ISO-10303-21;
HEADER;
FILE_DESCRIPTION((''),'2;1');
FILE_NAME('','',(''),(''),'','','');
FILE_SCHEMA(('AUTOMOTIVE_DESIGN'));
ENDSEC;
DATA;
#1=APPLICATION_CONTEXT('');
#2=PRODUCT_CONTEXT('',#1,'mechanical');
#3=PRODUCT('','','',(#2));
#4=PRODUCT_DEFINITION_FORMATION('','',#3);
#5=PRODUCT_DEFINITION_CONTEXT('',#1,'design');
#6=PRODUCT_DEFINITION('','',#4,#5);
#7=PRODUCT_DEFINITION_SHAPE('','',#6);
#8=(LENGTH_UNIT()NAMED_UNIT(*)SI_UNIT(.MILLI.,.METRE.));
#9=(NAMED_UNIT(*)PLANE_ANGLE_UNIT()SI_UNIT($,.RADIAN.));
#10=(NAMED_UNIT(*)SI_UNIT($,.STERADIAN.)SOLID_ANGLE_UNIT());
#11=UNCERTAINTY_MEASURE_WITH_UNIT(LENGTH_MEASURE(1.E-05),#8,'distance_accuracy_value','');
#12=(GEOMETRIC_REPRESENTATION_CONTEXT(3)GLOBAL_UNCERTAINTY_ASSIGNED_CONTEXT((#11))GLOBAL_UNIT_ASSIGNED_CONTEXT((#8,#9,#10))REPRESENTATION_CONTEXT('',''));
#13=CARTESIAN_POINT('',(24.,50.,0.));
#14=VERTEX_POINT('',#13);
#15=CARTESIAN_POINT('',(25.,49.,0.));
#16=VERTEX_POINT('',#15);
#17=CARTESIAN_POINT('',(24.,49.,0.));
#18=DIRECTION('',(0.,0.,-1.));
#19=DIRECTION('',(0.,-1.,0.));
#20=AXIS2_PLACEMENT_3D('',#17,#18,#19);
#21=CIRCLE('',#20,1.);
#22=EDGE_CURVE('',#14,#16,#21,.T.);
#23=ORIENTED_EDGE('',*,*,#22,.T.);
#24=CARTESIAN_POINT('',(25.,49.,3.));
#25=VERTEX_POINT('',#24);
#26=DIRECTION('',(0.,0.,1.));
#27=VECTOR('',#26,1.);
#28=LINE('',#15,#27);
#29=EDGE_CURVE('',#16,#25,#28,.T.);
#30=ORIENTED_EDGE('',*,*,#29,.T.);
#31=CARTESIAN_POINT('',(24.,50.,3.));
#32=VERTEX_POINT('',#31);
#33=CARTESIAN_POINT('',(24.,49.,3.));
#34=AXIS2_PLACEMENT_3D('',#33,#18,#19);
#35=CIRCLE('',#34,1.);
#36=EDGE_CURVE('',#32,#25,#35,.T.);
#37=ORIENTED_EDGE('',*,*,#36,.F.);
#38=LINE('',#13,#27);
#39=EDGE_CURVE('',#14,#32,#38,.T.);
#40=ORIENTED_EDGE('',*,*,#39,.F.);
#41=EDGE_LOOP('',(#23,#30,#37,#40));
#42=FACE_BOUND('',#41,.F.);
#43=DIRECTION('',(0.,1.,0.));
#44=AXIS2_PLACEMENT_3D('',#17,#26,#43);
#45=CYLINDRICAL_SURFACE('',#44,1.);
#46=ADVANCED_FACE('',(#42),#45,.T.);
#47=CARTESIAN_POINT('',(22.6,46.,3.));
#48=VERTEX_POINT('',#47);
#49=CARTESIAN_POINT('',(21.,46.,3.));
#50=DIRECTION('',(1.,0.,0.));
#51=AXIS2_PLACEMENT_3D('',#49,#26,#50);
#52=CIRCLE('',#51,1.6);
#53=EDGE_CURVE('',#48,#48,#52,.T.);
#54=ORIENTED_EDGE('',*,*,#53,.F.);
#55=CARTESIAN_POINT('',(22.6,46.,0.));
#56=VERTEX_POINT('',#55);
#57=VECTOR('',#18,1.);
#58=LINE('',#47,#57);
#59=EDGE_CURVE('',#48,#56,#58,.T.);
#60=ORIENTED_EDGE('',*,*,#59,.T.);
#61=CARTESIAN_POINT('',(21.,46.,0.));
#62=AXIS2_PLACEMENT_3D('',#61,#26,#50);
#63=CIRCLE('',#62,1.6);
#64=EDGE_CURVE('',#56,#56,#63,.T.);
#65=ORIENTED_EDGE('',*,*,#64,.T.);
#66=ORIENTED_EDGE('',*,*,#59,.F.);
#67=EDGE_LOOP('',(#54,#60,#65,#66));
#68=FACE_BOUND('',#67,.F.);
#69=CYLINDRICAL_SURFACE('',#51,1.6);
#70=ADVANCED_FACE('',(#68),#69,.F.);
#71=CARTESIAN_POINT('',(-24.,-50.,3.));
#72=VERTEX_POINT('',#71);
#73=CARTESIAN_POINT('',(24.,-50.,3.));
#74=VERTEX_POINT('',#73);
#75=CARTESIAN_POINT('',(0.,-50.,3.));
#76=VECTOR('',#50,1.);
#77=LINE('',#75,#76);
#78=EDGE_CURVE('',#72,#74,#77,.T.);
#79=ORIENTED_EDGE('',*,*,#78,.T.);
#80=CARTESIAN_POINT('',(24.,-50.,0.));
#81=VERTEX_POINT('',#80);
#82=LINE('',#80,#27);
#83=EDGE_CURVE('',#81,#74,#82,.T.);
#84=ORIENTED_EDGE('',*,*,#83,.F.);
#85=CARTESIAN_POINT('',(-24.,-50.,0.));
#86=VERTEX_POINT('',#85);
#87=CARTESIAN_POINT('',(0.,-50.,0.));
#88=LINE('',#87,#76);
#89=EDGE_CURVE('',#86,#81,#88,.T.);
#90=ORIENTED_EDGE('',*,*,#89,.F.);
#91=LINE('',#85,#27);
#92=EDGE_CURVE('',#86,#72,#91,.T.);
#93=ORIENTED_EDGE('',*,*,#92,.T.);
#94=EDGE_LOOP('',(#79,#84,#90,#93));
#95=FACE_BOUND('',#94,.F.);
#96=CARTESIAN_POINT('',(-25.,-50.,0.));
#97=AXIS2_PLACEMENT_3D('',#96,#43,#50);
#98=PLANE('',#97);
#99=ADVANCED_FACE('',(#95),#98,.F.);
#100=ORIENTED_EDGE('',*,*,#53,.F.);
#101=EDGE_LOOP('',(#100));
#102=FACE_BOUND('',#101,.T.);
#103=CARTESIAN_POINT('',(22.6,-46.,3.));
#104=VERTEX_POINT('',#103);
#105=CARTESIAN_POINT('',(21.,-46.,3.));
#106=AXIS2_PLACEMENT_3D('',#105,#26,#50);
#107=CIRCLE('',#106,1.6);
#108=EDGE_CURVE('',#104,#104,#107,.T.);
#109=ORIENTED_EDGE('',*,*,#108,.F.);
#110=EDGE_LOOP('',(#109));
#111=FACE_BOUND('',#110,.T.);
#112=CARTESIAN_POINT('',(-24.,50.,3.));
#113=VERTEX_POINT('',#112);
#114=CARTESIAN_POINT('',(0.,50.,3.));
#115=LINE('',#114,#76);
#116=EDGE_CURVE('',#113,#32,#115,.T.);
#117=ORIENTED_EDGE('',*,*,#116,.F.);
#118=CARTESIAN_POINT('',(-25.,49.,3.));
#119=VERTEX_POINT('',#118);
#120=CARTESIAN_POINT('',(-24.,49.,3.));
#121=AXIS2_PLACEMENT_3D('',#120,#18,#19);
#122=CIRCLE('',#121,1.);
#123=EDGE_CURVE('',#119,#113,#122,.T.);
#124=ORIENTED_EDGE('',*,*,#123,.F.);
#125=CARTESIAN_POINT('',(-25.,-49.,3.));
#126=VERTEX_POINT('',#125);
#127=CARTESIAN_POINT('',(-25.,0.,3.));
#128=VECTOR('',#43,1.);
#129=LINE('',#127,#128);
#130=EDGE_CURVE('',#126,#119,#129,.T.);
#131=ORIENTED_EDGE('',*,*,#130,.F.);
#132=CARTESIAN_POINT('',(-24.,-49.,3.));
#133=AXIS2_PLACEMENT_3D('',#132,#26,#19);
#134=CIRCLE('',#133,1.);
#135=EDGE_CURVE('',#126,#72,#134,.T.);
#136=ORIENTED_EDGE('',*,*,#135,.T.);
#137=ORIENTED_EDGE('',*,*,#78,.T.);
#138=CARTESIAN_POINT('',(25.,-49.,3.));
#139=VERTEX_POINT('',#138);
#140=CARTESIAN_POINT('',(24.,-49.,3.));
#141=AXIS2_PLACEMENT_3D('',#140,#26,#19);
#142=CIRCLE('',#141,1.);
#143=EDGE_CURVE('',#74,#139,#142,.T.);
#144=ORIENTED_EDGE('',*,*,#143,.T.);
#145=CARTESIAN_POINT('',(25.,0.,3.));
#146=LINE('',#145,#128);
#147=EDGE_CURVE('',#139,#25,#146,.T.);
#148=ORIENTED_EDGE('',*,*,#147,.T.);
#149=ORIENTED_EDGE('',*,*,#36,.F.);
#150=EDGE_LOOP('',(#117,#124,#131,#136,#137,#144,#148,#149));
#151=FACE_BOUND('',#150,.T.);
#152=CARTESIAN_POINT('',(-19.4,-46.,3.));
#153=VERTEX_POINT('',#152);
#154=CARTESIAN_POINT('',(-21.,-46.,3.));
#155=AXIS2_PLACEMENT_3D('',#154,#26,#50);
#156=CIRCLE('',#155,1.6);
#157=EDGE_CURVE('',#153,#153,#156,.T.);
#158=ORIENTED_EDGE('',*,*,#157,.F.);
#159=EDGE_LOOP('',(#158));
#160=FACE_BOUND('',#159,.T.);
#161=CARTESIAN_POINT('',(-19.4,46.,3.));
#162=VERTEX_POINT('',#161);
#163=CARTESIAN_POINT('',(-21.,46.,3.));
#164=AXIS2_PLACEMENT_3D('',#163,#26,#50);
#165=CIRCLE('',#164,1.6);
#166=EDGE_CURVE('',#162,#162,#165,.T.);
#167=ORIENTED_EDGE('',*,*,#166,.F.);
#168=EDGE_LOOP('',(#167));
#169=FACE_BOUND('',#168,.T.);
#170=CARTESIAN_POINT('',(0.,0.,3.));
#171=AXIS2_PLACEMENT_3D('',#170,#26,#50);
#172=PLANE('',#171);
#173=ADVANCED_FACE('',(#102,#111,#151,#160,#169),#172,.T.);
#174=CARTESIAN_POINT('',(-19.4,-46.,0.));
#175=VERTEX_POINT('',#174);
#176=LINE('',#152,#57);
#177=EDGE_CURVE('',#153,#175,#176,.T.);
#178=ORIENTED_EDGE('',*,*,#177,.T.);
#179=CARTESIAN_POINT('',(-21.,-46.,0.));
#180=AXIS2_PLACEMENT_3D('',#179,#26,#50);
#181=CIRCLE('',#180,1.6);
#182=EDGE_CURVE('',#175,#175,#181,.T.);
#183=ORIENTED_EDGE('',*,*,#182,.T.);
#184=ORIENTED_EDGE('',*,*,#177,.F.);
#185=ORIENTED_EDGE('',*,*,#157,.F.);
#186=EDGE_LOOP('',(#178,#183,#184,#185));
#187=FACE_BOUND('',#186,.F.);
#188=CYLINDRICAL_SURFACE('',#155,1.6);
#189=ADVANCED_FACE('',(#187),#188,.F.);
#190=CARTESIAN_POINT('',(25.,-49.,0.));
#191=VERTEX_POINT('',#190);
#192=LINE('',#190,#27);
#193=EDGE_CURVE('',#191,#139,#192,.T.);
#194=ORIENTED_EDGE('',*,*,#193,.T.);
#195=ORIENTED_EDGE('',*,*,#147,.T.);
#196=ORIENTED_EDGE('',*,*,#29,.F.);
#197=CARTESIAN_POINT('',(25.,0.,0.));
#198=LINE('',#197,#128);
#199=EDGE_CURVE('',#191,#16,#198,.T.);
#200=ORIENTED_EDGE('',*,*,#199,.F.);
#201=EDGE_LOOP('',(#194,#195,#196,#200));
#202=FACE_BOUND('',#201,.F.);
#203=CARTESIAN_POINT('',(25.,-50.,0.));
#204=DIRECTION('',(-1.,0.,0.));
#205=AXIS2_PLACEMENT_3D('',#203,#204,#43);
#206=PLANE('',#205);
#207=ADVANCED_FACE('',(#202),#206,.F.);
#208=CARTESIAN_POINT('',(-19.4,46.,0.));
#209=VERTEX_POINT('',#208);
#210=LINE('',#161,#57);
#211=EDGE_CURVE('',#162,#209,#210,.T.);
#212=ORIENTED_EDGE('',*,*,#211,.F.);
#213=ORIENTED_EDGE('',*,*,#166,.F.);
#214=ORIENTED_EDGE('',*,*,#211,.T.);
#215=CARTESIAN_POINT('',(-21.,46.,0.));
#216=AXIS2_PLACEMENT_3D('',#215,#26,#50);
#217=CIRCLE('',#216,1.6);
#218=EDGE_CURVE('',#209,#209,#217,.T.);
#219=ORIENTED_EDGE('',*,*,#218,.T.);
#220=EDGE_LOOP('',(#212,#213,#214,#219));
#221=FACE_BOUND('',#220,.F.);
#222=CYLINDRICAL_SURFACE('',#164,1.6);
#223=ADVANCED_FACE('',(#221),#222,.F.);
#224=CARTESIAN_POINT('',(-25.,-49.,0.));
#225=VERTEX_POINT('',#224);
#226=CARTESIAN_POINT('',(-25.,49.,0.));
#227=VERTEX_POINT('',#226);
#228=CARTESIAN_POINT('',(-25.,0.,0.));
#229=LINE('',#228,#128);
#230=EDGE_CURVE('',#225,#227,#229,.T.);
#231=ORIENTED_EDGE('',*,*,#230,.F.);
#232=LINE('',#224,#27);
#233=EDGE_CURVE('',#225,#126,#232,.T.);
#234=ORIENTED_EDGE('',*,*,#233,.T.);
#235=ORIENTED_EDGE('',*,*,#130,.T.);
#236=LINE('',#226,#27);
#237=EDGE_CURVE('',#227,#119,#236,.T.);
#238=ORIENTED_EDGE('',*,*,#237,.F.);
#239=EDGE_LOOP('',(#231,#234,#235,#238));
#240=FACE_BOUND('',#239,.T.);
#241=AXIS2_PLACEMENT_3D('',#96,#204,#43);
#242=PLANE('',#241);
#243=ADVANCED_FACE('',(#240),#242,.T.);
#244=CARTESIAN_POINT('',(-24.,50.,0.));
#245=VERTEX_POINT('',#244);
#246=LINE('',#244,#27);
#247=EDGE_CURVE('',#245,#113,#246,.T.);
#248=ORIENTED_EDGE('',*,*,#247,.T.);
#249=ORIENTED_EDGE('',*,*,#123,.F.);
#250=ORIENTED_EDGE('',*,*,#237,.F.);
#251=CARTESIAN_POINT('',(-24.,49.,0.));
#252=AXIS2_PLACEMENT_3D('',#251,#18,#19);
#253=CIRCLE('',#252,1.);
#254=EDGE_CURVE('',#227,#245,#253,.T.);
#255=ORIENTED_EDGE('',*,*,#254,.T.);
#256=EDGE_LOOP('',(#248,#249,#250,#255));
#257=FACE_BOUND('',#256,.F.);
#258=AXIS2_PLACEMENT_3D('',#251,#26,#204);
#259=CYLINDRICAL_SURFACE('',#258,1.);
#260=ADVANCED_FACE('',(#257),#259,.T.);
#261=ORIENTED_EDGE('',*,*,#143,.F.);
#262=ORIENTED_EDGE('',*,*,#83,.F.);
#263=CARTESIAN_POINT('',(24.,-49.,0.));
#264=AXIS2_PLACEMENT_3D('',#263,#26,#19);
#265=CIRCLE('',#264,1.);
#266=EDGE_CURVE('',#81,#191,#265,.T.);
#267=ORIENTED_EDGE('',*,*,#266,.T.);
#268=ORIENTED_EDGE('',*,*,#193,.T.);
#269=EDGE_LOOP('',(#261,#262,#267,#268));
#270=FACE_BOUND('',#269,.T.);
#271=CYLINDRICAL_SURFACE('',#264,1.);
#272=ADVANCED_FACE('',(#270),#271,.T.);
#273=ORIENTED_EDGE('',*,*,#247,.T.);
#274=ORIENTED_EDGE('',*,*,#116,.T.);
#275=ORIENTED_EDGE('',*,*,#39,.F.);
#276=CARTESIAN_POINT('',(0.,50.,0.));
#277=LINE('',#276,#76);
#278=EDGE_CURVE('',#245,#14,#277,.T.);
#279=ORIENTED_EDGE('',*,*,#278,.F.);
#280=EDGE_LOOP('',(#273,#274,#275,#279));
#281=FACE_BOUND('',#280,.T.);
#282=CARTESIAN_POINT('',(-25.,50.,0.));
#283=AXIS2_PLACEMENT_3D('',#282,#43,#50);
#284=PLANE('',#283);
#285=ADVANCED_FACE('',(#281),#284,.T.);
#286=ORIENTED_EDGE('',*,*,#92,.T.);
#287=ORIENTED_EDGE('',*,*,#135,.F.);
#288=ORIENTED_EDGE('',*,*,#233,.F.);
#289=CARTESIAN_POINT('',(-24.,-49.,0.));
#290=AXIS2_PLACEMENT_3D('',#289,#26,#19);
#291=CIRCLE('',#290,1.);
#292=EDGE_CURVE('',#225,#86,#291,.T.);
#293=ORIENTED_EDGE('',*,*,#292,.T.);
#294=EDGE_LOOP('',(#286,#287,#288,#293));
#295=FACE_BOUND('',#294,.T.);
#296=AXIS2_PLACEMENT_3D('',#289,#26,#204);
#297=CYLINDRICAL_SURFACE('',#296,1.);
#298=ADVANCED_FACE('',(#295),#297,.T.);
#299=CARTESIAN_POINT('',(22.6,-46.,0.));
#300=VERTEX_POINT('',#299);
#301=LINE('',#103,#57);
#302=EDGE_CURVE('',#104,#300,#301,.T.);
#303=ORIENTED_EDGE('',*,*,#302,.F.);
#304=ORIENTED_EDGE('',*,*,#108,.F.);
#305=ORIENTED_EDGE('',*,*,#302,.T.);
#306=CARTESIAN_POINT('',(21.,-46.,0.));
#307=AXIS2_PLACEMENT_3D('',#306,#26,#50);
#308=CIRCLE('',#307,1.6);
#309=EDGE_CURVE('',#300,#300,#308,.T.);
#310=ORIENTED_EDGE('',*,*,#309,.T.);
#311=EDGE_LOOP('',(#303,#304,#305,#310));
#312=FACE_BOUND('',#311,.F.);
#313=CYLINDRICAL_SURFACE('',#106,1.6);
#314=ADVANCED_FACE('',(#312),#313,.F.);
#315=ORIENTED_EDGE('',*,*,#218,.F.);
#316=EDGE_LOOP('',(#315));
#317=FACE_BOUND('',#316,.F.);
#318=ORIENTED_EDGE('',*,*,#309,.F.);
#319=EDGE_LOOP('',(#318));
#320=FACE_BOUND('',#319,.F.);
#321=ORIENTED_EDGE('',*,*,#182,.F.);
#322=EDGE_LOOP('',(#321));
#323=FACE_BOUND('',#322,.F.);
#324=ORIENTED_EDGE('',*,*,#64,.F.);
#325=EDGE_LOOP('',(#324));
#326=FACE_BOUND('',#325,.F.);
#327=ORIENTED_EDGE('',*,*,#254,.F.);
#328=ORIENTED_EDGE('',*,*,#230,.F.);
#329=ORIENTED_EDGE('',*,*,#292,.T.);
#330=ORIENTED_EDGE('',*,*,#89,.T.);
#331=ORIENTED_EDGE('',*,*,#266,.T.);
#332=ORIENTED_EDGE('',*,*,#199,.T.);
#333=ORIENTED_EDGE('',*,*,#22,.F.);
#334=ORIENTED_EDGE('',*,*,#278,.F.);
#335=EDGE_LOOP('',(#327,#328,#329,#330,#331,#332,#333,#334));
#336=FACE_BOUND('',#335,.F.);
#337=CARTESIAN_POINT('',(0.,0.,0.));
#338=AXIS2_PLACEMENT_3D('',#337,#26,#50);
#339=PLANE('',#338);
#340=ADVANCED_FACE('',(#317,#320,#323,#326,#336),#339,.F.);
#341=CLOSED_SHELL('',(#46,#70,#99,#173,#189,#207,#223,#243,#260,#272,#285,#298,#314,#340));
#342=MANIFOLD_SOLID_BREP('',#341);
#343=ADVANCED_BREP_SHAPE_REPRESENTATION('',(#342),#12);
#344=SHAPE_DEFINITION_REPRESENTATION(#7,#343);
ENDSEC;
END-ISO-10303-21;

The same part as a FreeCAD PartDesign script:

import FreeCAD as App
import Part
import Sketcher
from FreeCAD import Vector


def edges_at(feature, points):
    """Names of the edges that pass closest to the given points."""
    edges = feature.Shape.Edges
    near = lambda p: min(range(len(edges)), key=lambda i: edges[i].distToShape(Part.Vertex(*p))[0])
    return sorted({f"Edge{near(p) + 1}" for p in points})


def add_polygon(sketch, points):
    """Adds a closed chain of lines whose ends are joined by coincident constraints."""
    first, n = sketch.GeometryCount, len(points)
    for a, b in zip(points, points[1:] + points[:1]):
        sketch.addGeometry(Part.LineSegment(App.Vector(*a, 0), App.Vector(*b, 0)), False)
    for i in range(n):
        sketch.addConstraint(Sketcher.Constraint("Coincident", first + i, 2, first + (i + 1) % n, 1))

doc = App.newDocument("Part")
body = doc.addObject("PartDesign::Body", "Body")

# Sketch on XY plane
sketch1 = doc.addObject("Sketcher::SketchObject", "Sketch")
body.addObject(sketch1)
sketch1.AttachmentSupport = (doc.XY_Plane, [""])
sketch1.MapMode = "FlatFace"
add_polygon(sketch1, [(-25, 50), (-25, -50), (25, -50), (25, 50)])  # lines 0-3
sketch1.addConstraint(Sketcher.Constraint("Vertical", 0))
sketch1.addConstraint(Sketcher.Constraint("Horizontal", 1))
sketch1.addConstraint(Sketcher.Constraint("Vertical", 2))
sketch1.addConstraint(Sketcher.Constraint("Horizontal", 3))
sketch1.addConstraint(Sketcher.Constraint("Symmetric", 0, 2, 2, 2, -1, 1))
sketch1.addConstraint(Sketcher.Constraint("DistanceX", 1, 1, 1, 2, 50.0))
sketch1.addConstraint(Sketcher.Constraint("DistanceY", 0, 2, 0, 1, 100.0))
pad1 = doc.addObject("PartDesign::Pad", "Pad")
body.addObject(pad1)
pad1.Profile = sketch1
pad1.Length = 3

# Sketch on XY plane
sketch2 = doc.addObject("Sketcher::SketchObject", "Sketch001")
body.addObject(sketch2)
sketch2.AttachmentSupport = (doc.XY_Plane, [""])
sketch2.MapMode = "FlatFace"
sketch2.AttachmentOffset = App.Placement(Vector(0, 0, 3), App.Rotation())
sketch2.addGeometry(Part.Circle(Vector(-21, 46, 0), Vector(0, 0, 1), 1.6), False)
sketch2.addGeometry(Part.Circle(Vector(21, 46, 0), Vector(0, 0, 1), 1.6), False)
sketch2.addGeometry(Part.Circle(Vector(-21, -46, 0), Vector(0, 0, 1), 1.6), False)
sketch2.addGeometry(Part.Circle(Vector(21, -46, 0), Vector(0, 0, 1), 1.6), False)
sketch2.addConstraint(Sketcher.Constraint("Equal", 0, 1))
sketch2.addConstraint(Sketcher.Constraint("Equal", 1, 2))
sketch2.addConstraint(Sketcher.Constraint("Equal", 2, 3))
sketch2.addConstraint(Sketcher.Constraint("Symmetric", 1, 3, 2, 3, -1, 1))
sketch2.addConstraint(Sketcher.Constraint("Symmetric", 0, 3, 3, 3, -1, 1))
sketch2.addConstraint(Sketcher.Constraint("Symmetric", 0, 3, 1, 3, -2))
sketch2.addConstraint(Sketcher.Constraint("Diameter", 0, 3.2))
sketch2.addConstraint(Sketcher.Constraint("DistanceX", 0, 3, -1, 1, 21.0))
sketch2.addConstraint(Sketcher.Constraint("DistanceY", -1, 1, 0, 3, 46.0))
pocket1 = doc.addObject("PartDesign::Pocket", "Pocket")
body.addObject(pocket1)
pocket1.Profile = sketch2
pocket1.Length = 3
doc.recompute()

fillet = doc.addObject("PartDesign::Fillet", "Fillet")
body.addObject(fillet)
fillet.Base = (pocket1, edges_at(pocket1, [
    (-25, 50, 1.5),
    (25, 50, 1.5),
    (25, -50, 1.5),
    (-25, -50, 1.5),
]))
fillet.Radius = 1

doc.recompute()
